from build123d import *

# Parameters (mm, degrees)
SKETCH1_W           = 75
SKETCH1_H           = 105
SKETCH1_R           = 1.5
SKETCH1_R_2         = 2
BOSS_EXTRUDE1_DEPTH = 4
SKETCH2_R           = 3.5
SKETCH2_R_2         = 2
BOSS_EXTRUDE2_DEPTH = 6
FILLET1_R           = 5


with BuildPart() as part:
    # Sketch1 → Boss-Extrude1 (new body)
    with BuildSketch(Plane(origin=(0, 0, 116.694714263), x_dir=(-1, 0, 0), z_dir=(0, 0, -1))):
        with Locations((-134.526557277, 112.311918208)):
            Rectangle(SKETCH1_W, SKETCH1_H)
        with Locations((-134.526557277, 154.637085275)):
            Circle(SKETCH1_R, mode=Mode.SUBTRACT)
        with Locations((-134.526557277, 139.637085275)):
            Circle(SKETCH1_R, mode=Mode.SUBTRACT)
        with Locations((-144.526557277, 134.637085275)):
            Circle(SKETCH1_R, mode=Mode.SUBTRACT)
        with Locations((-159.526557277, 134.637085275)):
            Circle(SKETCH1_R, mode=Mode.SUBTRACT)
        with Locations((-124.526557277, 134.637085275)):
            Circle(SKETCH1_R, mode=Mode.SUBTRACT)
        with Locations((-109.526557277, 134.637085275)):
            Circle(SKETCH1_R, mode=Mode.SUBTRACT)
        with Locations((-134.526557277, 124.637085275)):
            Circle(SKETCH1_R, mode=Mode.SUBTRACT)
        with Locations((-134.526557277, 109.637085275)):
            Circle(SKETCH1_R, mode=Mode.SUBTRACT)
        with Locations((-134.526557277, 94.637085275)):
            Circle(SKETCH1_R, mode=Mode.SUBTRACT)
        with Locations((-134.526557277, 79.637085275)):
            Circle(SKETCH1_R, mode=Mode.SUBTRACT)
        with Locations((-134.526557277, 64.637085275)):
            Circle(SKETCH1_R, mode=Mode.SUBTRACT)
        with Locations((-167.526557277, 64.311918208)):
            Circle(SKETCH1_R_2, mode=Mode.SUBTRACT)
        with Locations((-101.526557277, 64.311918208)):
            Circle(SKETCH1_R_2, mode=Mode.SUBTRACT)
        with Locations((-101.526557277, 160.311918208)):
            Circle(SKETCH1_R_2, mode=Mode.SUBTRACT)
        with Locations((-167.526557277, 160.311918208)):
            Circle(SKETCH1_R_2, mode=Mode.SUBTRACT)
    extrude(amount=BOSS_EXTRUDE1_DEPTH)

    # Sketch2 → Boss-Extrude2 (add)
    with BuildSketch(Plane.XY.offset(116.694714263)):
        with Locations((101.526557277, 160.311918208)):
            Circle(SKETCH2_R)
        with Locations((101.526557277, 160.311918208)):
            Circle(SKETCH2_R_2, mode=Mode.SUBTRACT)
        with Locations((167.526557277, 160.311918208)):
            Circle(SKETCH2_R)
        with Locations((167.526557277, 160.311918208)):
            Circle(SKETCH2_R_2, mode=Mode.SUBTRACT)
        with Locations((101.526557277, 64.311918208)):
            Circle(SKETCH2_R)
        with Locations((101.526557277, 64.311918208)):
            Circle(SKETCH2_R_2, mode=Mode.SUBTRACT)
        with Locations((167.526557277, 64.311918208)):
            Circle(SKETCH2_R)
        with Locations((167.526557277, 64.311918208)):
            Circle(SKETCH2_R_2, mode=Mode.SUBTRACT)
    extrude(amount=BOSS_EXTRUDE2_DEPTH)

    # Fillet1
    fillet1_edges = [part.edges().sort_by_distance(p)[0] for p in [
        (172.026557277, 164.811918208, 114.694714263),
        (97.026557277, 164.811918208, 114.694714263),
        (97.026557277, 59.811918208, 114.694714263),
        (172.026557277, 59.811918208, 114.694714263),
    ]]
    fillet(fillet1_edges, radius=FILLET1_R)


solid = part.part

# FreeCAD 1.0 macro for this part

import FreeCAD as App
import Part
import Sketcher
from FreeCAD import Vector
Q = App.Units.Quantity


def edges_at(feature, points):
    """Names of the edges that pass closest to the given points."""
    edges = feature.Shape.Edges
    near = lambda p: min(range(len(edges)), key=lambda i: edges[i].distToShape(Part.Vertex(*p))[0])
    return sorted({f"Edge{near(p) + 1}" for p in points})


def add_polygon(sketch, points):
    """Adds a closed chain of lines whose ends are joined by coincident constraints."""
    first, n = sketch.GeometryCount, len(points)
    for a, b in zip(points, points[1:] + points[:1]):
        sketch.addGeometry(Part.LineSegment(App.Vector(*a, 0), App.Vector(*b, 0)), False)
    for i in range(n):
        sketch.addConstraint(Sketcher.Constraint("Coincident", first + i, 2, first + (i + 1) % n, 1))

doc = App.newDocument("Part")
body = doc.addObject("PartDesign::Body", "Body")

sketch1 = body.newObject("Sketcher::SketchObject", "Sketch")
sketch1.AttachmentSupport = (doc.getObject("XY_Plane"), [""])
sketch1.MapMode = "FlatFace"
sketch1.AttachmentOffset = App.Placement(Vector(0, 0, 116.694714), App.Rotation())
add_polygon(sketch1, [(172, 164.8), (172, 59.8), (97, 59.8), (97, 164.8)])
sketch1.addGeometry(Part.Circle(Vector(167.5, 64.3, 0), Vector(0, 0, 1), 2), False)
sketch1.addGeometry(Part.Circle(Vector(134.5, 64.6, 0), Vector(0, 0, 1), 1.5), False)
sketch1.addGeometry(Part.Circle(Vector(134.5, 79.6, 0), Vector(0, 0, 1), 1.5), False)
sketch1.addGeometry(Part.Circle(Vector(101.5, 64.3, 0), Vector(0, 0, 1), 2), False)
sketch1.addGeometry(Part.Circle(Vector(134.5, 94.6, 0), Vector(0, 0, 1), 1.5), False)
sketch1.addGeometry(Part.Circle(Vector(134.5, 109.6, 0), Vector(0, 0, 1), 1.5), False)
sketch1.addGeometry(Part.Circle(Vector(159.5, 134.6, 0), Vector(0, 0, 1), 1.5), False)
sketch1.addGeometry(Part.Circle(Vector(144.5, 134.6, 0), Vector(0, 0, 1), 1.5), False)
sketch1.addGeometry(Part.Circle(Vector(167.5, 160.3, 0), Vector(0, 0, 1), 2), False)
sketch1.addGeometry(Part.Circle(Vector(134.5, 124.6, 0), Vector(0, 0, 1), 1.5), False)
sketch1.addGeometry(Part.Circle(Vector(124.5, 134.6, 0), Vector(0, 0, 1), 1.5), False)
sketch1.addGeometry(Part.Circle(Vector(109.5, 134.6, 0), Vector(0, 0, 1), 1.5), False)
sketch1.addGeometry(Part.Circle(Vector(134.5, 139.6, 0), Vector(0, 0, 1), 1.5), False)
sketch1.addGeometry(Part.Circle(Vector(134.5, 154.6, 0), Vector(0, 0, 1), 1.5), False)
sketch1.addGeometry(Part.Circle(Vector(101.5, 160.3, 0), Vector(0, 0, 1), 2), False)
sketch1.addConstraint([
    Sketcher.Constraint("Vertical", 0),
    Sketcher.Constraint("Horizontal", 1),
    Sketcher.Constraint("Vertical", 2),
    Sketcher.Constraint("Horizontal", 3),
    Sketcher.Constraint("Equal", 5, 6),
    Sketcher.Constraint("Equal", 4, 7),
    Sketcher.Constraint("Equal", 6, 8),
    Sketcher.Constraint("Equal", 8, 9),
    Sketcher.Constraint("Equal", 9, 10),
    Sketcher.Constraint("Equal", 10, 11),
    Sketcher.Constraint("Equal", 7, 12),
    Sketcher.Constraint("Equal", 11, 13),
    Sketcher.Constraint("Equal", 13, 14),
    Sketcher.Constraint("Equal", 14, 15),
    Sketcher.Constraint("Equal", 15, 16),
    Sketcher.Constraint("Equal", 16, 17),
    Sketcher.Constraint("Equal", 12, 18),
    Sketcher.Constraint("Horizontal", 4, 3, 7, 3),
    Sketcher.Constraint("Horizontal", 10, 3, 11, 3),
    Sketcher.Constraint("Horizontal", 11, 3, 14, 3),
    Sketcher.Constraint("Horizontal", 14, 3, 15, 3),
    Sketcher.Constraint("Horizontal", 12, 3, 18, 3),
    Sketcher.Constraint("Vertical", 5, 3, 6, 3),
    Sketcher.Constraint("Vertical", 6, 3, 8, 3),
    Sketcher.Constraint("Vertical", 8, 3, 9, 3),
    Sketcher.Constraint("Vertical", 4, 3, 12, 3),
    Sketcher.Constraint("Vertical", 9, 3, 13, 3),
    Sketcher.Constraint("Vertical", 13, 3, 16, 3),
    Sketcher.Constraint("Vertical", 16, 3, 17, 3),
    Sketcher.Constraint("Vertical", 7, 3, 18, 3),
    Sketcher.Constraint("Diameter", 4, Q("4 mm")),
    Sketcher.Constraint("Diameter", 5, Q("3 mm")),
    Sketcher.Constraint("DistanceX", 1, 2, 1, 1, Q("75 mm")),
    Sketcher.Constraint("DistanceY", 0, 2, 0, 1, Q("105 mm")),
    Sketcher.Constraint("DistanceX", 5, 3, 4, 3, Q("33 mm")),
    Sketcher.Constraint("DistanceY", 5, 3, 6, 3, Q("15 mm")),
    Sketcher.Constraint("DistanceX", 7, 3, 5, 3, Q("33 mm")),
    Sketcher.Constraint("DistanceY", 6, 3, 8, 3, Q("15 mm")),
    Sketcher.Constraint("DistanceY", 8, 3, 9, 3, Q("15 mm")),
    Sketcher.Constraint("DistanceX", 9, 3, 10, 3, Q("25 mm")),
    Sketcher.Constraint("DistanceY", 9, 3, 10, 3, Q("25 mm")),
    Sketcher.Constraint("DistanceX", 11, 3, 10, 3, Q("15 mm")),
    Sketcher.Constraint("DistanceY", 13, 3, 11, 3, Q("10 mm")),
    Sketcher.Constraint("DistanceX", 14, 3, 13, 3, Q("10 mm")),
    Sketcher.Constraint("DistanceX", 15, 3, 14, 3, Q("15 mm")),
    Sketcher.Constraint("DistanceY", 11, 3, 16, 3, Q("5 mm")),
    Sketcher.Constraint("DistanceY", 16, 3, 17, 3, Q("15 mm")),
    Sketcher.Constraint("DistanceX", 4, 3, 0, 2, Q("4.5 mm")),
    Sketcher.Constraint("DistanceY", 0, 2, 4, 3, Q("4.5 mm")),
    Sketcher.Constraint("DistanceY", 18, 3, 2, 2, Q("4.5 mm")),
    Sketcher.Constraint("DistanceY", -1, 1, 4, 3, Q("64.311918 mm")),
    Sketcher.Constraint("DistanceX", -1, 1, 4, 3, Q("167.526557 mm")),
    Sketcher.Constraint("DistanceY", -1, 1, 5, 3, Q("64.637085 mm")),
])
pad1 = body.newObject("PartDesign::Pad", "Pad")
pad1.Profile = sketch1
pad1.Length = 4
pad1.Reversed = True

sketch2 = body.newObject("Sketcher::SketchObject", "Sketch001")
sketch2.AttachmentSupport = (doc.getObject("XY_Plane"), [""])
sketch2.MapMode = "FlatFace"
sketch2.AttachmentOffset = App.Placement(Vector(0, 0, 116.694714), App.Rotation())
sketch2.addGeometry([
    Part.Circle(Vector(101.5, 160.3, 0), Vector(0, 0, 1), 3.5),
    Part.Circle(Vector(101.5, 160.3, 0), Vector(0, 0, 1), 2),
    Part.Circle(Vector(167.5, 160.3, 0), Vector(0, 0, 1), 3.5),
    Part.Circle(Vector(167.5, 160.3, 0), Vector(0, 0, 1), 2),
    Part.Circle(Vector(101.5, 64.3, 0), Vector(0, 0, 1), 3.5),
    Part.Circle(Vector(101.5, 64.3, 0), Vector(0, 0, 1), 2),
    Part.Circle(Vector(167.5, 64.3, 0), Vector(0, 0, 1), 3.5),
    Part.Circle(Vector(167.5, 64.3, 0), Vector(0, 0, 1), 2),
], False)
sketch2.addConstraint([
    Sketcher.Constraint("Coincident", 1, 3, 0, 3),
    Sketcher.Constraint("Coincident", 3, 3, 2, 3),
    Sketcher.Constraint("Coincident", 5, 3, 4, 3),
    Sketcher.Constraint("Coincident", 7, 3, 6, 3),
    Sketcher.Constraint("Equal", 0, 2),
    Sketcher.Constraint("Equal", 1, 3),
    Sketcher.Constraint("Equal", 2, 4),
    Sketcher.Constraint("Equal", 3, 5),
    Sketcher.Constraint("Equal", 4, 6),
    Sketcher.Constraint("Equal", 5, 7),
    Sketcher.Constraint("Horizontal", 1, 3, 2, 3),
    Sketcher.Constraint("Horizontal", 5, 3, 6, 3),
    Sketcher.Constraint("Vertical", 1, 3, 4, 3),
    Sketcher.Constraint("Vertical", 3, 3, 6, 3),
    Sketcher.Constraint("Diameter", 0, Q("7 mm")),
    Sketcher.Constraint("Diameter", 1, Q("4 mm")),
    Sketcher.Constraint("DistanceX", 0, 3, 2, 3, Q("66 mm")),
    Sketcher.Constraint("DistanceY", 4, 3, 0, 3, Q("96 mm")),
    Sketcher.Constraint("DistanceY", -1, 1, 0, 3, Q("160.311918 mm")),
    Sketcher.Constraint("DistanceX", -1, 1, 0, 3, Q("101.526557 mm")),
])
pad2 = body.newObject("PartDesign::Pad", "Pad001")
pad2.Profile = sketch2
pad2.Length = 6
doc.recompute()

fillet = body.newObject("PartDesign::Fillet", "Fillet")
fillet.Base = (pad2, edges_at(pad2, [
    (172.027, 164.812, 114.695),
    (97.027, 164.812, 114.695),
    (97.027, 59.812, 114.695),
    (172.027, 59.812, 114.695),
]))
fillet.Radius = 5

doc.recompute()
